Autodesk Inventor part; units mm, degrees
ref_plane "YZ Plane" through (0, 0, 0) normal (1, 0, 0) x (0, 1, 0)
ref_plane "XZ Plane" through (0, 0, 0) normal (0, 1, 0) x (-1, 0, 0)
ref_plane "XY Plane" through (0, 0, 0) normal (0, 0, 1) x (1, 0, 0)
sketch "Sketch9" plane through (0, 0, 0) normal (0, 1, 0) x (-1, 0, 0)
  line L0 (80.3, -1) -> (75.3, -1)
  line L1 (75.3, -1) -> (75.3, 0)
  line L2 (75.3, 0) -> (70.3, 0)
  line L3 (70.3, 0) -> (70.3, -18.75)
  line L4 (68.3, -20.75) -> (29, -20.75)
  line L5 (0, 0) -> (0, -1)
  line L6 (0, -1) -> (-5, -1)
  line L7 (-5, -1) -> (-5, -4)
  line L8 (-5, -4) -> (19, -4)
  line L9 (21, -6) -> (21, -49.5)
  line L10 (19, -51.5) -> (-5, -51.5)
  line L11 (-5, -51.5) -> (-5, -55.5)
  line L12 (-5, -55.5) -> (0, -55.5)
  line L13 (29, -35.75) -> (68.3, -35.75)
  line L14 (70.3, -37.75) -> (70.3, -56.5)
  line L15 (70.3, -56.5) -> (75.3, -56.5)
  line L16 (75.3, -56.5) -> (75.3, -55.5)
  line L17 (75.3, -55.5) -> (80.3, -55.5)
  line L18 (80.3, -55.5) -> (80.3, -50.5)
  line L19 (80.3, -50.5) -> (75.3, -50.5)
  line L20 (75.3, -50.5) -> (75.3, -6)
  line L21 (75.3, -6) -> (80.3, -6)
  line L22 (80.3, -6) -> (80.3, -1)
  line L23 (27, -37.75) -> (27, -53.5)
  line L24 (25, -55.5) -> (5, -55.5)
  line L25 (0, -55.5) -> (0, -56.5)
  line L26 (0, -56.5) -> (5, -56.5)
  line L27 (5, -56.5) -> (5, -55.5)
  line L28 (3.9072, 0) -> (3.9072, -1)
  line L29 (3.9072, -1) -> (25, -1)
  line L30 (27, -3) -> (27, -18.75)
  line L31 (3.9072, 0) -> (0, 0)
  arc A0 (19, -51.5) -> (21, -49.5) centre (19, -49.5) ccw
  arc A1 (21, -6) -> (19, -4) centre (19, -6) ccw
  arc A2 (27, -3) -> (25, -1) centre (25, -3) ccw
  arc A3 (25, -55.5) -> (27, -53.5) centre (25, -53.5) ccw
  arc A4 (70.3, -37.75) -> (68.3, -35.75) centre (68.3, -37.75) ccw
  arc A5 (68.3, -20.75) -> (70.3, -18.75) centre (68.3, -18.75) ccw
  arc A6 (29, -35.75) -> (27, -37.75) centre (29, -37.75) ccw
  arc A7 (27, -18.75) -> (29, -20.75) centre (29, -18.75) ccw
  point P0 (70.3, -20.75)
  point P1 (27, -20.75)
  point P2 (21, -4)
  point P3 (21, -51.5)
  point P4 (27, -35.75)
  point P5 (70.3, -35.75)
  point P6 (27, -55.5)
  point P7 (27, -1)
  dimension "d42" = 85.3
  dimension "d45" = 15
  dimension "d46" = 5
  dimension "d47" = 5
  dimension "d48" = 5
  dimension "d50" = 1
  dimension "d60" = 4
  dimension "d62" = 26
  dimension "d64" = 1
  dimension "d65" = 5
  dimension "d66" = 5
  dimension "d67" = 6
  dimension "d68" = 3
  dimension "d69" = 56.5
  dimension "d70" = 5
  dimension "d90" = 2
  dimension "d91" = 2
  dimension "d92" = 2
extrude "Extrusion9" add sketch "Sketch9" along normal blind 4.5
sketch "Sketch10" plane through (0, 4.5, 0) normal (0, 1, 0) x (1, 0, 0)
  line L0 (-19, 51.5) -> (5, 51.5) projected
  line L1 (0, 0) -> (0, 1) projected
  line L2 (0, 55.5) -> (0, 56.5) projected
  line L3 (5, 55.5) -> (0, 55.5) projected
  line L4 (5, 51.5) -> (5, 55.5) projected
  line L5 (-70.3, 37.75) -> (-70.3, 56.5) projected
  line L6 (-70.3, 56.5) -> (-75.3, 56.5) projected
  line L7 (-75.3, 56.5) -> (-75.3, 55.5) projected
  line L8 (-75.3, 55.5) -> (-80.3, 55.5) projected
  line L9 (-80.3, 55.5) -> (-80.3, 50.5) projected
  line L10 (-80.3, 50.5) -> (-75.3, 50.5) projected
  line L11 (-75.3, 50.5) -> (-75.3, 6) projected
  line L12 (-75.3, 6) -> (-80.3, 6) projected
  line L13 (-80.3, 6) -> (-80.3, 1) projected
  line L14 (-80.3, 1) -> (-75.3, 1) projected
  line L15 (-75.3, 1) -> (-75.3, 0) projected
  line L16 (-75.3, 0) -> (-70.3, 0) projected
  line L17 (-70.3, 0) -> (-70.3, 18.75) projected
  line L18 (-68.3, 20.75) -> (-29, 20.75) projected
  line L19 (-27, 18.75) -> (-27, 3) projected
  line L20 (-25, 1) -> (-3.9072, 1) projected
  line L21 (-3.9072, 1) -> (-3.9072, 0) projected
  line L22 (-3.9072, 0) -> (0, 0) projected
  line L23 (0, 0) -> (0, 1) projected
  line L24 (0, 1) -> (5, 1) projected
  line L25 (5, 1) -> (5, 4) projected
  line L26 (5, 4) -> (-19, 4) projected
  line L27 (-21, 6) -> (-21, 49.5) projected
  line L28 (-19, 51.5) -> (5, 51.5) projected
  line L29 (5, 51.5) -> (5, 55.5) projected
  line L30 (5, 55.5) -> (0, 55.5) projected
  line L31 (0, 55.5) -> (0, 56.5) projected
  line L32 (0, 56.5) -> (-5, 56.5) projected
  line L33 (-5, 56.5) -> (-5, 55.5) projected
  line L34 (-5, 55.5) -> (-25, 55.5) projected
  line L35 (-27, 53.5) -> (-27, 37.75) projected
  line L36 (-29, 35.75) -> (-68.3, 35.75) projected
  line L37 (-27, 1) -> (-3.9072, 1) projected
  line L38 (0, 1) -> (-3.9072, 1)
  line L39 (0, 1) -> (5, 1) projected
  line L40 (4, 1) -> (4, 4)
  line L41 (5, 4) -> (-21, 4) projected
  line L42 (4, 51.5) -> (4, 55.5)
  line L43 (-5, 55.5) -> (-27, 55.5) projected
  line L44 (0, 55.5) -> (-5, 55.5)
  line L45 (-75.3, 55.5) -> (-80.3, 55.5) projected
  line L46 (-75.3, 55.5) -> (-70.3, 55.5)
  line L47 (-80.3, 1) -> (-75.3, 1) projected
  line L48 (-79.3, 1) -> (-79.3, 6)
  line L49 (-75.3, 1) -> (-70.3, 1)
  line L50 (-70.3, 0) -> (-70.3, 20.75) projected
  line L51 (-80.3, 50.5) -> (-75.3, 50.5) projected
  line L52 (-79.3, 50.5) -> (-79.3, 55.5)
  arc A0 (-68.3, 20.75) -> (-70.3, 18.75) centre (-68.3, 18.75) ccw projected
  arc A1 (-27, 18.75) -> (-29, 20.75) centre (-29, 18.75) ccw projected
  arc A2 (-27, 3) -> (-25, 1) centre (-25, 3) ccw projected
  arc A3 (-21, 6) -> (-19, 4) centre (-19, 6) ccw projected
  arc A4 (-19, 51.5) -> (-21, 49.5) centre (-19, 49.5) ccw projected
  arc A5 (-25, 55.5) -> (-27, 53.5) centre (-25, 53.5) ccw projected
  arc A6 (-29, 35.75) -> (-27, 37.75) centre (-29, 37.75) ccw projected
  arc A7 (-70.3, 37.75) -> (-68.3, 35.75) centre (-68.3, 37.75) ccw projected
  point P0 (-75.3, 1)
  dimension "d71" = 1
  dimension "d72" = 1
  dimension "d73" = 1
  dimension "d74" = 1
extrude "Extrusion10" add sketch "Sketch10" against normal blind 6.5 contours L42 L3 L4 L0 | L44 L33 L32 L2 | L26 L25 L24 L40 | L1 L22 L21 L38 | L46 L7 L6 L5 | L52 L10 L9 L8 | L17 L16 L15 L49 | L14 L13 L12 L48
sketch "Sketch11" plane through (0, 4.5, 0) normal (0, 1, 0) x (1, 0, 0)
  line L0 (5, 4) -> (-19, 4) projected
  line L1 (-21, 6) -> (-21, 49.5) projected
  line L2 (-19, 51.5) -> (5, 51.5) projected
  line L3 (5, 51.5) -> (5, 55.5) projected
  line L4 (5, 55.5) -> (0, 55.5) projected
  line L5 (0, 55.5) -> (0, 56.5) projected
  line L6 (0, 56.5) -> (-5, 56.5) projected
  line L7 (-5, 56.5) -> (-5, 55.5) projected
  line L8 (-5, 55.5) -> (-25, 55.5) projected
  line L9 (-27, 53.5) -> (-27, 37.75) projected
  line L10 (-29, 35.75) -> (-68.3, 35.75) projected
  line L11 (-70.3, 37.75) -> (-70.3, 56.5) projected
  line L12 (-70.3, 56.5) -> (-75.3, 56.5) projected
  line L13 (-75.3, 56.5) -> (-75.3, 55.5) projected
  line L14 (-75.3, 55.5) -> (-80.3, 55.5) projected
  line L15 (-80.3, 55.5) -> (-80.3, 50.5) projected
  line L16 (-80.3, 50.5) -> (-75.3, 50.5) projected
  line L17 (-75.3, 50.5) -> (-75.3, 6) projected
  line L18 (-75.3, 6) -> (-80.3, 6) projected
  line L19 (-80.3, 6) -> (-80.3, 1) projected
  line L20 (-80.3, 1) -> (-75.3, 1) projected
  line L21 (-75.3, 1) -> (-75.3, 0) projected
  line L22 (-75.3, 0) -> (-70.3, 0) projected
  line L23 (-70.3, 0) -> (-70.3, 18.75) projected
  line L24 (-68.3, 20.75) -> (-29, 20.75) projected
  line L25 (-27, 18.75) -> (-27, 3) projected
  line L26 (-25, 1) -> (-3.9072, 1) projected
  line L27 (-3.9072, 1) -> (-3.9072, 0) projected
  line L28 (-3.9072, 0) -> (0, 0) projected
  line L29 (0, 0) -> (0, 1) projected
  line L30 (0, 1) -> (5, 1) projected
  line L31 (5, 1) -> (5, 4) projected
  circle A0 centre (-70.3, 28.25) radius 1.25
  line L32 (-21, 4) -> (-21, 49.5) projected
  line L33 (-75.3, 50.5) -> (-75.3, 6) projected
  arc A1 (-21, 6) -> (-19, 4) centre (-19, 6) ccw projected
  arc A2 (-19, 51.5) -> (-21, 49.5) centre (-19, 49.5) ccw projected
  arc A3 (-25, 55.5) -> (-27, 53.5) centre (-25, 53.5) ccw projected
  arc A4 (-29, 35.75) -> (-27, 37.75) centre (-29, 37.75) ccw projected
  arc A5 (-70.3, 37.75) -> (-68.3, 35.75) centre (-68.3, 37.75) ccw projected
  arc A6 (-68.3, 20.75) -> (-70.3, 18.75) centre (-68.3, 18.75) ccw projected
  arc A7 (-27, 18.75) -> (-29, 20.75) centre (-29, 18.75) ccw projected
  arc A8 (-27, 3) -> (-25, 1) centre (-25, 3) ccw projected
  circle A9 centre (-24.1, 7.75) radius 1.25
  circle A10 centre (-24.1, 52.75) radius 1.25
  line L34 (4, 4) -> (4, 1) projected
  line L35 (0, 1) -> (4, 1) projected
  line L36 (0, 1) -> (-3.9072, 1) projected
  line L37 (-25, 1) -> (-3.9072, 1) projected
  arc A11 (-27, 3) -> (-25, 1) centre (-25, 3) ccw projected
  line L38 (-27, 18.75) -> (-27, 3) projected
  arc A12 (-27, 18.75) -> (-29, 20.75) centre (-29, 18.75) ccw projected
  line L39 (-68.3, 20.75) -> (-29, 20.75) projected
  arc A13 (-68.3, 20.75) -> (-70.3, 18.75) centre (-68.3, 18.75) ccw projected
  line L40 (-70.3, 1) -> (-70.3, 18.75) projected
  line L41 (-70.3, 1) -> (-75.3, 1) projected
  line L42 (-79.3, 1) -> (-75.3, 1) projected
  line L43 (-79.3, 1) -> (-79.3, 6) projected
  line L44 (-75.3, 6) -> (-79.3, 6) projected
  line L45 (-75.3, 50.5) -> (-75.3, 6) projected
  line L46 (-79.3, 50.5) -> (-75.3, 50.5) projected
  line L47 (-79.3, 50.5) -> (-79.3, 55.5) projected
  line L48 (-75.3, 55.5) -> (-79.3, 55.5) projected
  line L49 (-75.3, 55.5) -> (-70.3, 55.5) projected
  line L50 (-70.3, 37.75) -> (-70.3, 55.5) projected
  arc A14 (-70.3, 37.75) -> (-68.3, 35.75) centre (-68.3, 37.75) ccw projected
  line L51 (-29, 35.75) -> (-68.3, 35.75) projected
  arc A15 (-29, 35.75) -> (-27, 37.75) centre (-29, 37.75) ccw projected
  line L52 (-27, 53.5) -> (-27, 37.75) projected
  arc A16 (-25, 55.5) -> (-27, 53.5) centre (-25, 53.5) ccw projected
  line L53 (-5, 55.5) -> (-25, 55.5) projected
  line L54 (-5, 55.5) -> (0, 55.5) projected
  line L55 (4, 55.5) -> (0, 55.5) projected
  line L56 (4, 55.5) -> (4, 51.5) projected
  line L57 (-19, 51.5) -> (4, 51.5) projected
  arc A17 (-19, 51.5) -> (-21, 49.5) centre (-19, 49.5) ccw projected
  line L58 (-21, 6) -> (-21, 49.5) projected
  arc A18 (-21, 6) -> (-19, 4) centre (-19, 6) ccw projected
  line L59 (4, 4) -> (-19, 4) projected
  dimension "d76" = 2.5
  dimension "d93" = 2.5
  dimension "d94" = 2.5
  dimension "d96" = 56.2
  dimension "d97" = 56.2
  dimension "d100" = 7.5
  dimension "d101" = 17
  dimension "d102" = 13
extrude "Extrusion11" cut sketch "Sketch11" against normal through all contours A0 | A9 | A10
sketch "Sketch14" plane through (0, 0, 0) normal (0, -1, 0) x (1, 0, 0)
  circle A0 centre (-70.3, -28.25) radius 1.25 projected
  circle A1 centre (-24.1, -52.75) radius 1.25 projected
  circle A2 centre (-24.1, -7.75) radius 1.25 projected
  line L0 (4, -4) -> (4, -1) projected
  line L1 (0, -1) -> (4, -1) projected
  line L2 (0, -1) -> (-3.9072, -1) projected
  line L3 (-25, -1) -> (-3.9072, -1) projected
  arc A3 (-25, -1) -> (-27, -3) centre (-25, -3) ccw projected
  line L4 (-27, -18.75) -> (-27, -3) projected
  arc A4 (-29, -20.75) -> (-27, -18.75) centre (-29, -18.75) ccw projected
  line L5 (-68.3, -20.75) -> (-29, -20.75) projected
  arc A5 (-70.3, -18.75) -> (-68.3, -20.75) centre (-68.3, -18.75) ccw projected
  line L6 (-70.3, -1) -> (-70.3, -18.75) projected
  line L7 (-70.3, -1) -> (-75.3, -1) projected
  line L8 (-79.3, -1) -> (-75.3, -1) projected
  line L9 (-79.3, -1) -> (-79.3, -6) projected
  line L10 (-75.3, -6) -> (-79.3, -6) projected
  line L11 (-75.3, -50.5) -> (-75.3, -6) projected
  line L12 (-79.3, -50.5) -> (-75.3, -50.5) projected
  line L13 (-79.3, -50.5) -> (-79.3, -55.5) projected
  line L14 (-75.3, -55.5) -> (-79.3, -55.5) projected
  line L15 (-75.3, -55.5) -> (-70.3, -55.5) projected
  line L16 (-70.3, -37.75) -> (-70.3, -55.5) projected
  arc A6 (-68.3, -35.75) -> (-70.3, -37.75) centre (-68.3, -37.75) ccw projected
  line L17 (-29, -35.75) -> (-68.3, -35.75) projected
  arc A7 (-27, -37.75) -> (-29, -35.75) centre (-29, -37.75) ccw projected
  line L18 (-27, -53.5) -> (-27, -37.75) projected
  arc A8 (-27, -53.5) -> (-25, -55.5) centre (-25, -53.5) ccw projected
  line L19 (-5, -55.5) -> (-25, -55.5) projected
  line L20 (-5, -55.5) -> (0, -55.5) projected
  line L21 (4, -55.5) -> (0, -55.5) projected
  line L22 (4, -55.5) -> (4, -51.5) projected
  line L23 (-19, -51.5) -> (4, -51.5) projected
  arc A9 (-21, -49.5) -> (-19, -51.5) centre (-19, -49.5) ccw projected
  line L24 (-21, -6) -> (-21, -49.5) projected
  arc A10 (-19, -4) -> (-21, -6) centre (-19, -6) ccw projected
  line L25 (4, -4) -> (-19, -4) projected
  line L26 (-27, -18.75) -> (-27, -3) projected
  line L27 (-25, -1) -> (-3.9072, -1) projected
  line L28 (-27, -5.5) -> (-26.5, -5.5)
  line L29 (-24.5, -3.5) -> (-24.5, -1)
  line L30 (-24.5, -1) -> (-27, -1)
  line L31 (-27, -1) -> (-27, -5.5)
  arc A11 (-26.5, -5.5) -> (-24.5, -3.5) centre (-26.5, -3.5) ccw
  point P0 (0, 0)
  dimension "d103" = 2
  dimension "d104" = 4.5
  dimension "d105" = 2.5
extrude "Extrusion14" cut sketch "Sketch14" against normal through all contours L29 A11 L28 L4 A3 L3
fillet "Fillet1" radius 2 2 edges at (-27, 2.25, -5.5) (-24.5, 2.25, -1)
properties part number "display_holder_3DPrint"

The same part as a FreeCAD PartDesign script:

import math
import FreeCAD as App
import Part
import Sketcher


def edges_at(feature, points):
    """Names of the edges that pass closest to the given points."""
    edges = feature.Shape.Edges
    near = lambda p: min(range(len(edges)), key=lambda i: edges[i].distToShape(Part.Vertex(*p))[0])
    return sorted({f"Edge{near(p) + 1}" for p in points})

doc = App.newDocument("Part")
body = doc.addObject("PartDesign::Body", "Body")

# Sketch on XZ plane
sketch1 = body.newObject("Sketcher::SketchObject", "Sketch")
sketch1.AttachmentSupport = (doc.getObject("XZ_Plane"), [""])
sketch1.MapMode = "FlatFace"
sketch1.addGeometry([
    Part.LineSegment(App.Vector(-80.3, -6, 0), App.Vector(-80.3, -1, 0)),  # 0
    Part.LineSegment(App.Vector(-80.3, -1, 0), App.Vector(-75.3, -1, 0)),  # 1
    Part.LineSegment(App.Vector(-75.3, -1, 0), App.Vector(-75.3, 0, 0)),  # 2
    Part.LineSegment(App.Vector(-75.3, 0, 0), App.Vector(-70.3, 0, 0)),  # 3
    Part.LineSegment(App.Vector(-70.3, 0, 0), App.Vector(-70.3, -18.8, 0)),  # 4
    Part.ArcOfCircle(Part.Circle(App.Vector(-68.3, -18.8, 0), App.Vector(0, 0, 1), 2), math.radians(180), math.radians(270)),  # 5
    Part.LineSegment(App.Vector(-68.3, -20.8, 0), App.Vector(-29, -20.8, 0)),  # 6
    Part.ArcOfCircle(Part.Circle(App.Vector(-29, -18.8, 0), App.Vector(0, 0, 1), 2), math.radians(-90), math.radians(0)),  # 7
    Part.LineSegment(App.Vector(-27, -18.8, 0), App.Vector(-27, -3, 0)),  # 8
    Part.ArcOfCircle(Part.Circle(App.Vector(-25, -3, 0), App.Vector(0, 0, 1), 2), math.radians(90), math.radians(180)),  # 9
    Part.LineSegment(App.Vector(-25, -1, 0), App.Vector(-3.9, -1, 0)),  # 10
    Part.LineSegment(App.Vector(-3.9, -1, 0), App.Vector(-3.9, 0, 0)),  # 11
    Part.LineSegment(App.Vector(-3.9, 0, 0), App.Vector(0, 0, 0)),  # 12
    Part.LineSegment(App.Vector(0, 0, 0), App.Vector(0, -1, 0)),  # 13
    Part.LineSegment(App.Vector(0, -1, 0), App.Vector(5, -1, 0)),  # 14
    Part.LineSegment(App.Vector(5, -1, 0), App.Vector(5, -4, 0)),  # 15
    Part.LineSegment(App.Vector(5, -4, 0), App.Vector(-19, -4, 0)),  # 16
    Part.ArcOfCircle(Part.Circle(App.Vector(-19, -6, 0), App.Vector(0, 0, 1), 2), math.radians(90), math.radians(180)),  # 17
    Part.LineSegment(App.Vector(-21, -6, 0), App.Vector(-21, -49.5, 0)),  # 18
    Part.ArcOfCircle(Part.Circle(App.Vector(-19, -49.5, 0), App.Vector(0, 0, 1), 2), math.radians(180), math.radians(270)),  # 19
    Part.LineSegment(App.Vector(-19, -51.5, 0), App.Vector(5, -51.5, 0)),  # 20
    Part.LineSegment(App.Vector(5, -51.5, 0), App.Vector(5, -55.5, 0)),  # 21
    Part.LineSegment(App.Vector(5, -55.5, 0), App.Vector(0, -55.5, 0)),  # 22
    Part.LineSegment(App.Vector(0, -55.5, 0), App.Vector(0, -56.5, 0)),  # 23
    Part.LineSegment(App.Vector(0, -56.5, 0), App.Vector(-5, -56.5, 0)),  # 24
    Part.LineSegment(App.Vector(-5, -56.5, 0), App.Vector(-5, -55.5, 0)),  # 25
    Part.LineSegment(App.Vector(-5, -55.5, 0), App.Vector(-25, -55.5, 0)),  # 26
    Part.ArcOfCircle(Part.Circle(App.Vector(-25, -53.5, 0), App.Vector(0, 0, 1), 2), math.radians(180), math.radians(270)),  # 27
    Part.LineSegment(App.Vector(-27, -53.5, 0), App.Vector(-27, -37.8, 0)),  # 28
    Part.ArcOfCircle(Part.Circle(App.Vector(-29, -37.8, 0), App.Vector(0, 0, 1), 2), math.radians(0), math.radians(90)),  # 29
    Part.LineSegment(App.Vector(-29, -35.8, 0), App.Vector(-68.3, -35.8, 0)),  # 30
    Part.ArcOfCircle(Part.Circle(App.Vector(-68.3, -37.8, 0), App.Vector(0, 0, 1), 2), math.radians(90), math.radians(180)),  # 31
    Part.LineSegment(App.Vector(-70.3, -37.8, 0), App.Vector(-70.3, -56.5, 0)),  # 32
    Part.LineSegment(App.Vector(-70.3, -56.5, 0), App.Vector(-75.3, -56.5, 0)),  # 33
    Part.LineSegment(App.Vector(-75.3, -56.5, 0), App.Vector(-75.3, -55.5, 0)),  # 34
    Part.LineSegment(App.Vector(-75.3, -55.5, 0), App.Vector(-80.3, -55.5, 0)),  # 35
    Part.LineSegment(App.Vector(-80.3, -55.5, 0), App.Vector(-80.3, -50.5, 0)),  # 36
    Part.LineSegment(App.Vector(-80.3, -50.5, 0), App.Vector(-75.3, -50.5, 0)),  # 37
    Part.LineSegment(App.Vector(-75.3, -50.5, 0), App.Vector(-75.3, -6, 0)),  # 38
    Part.LineSegment(App.Vector(-75.3, -6, 0), App.Vector(-80.3, -6, 0)),  # 39
], False)
sketch1.addConstraint([
    Sketcher.Constraint("Coincident", 0, 2, 1, 1),
    Sketcher.Constraint("Coincident", 1, 2, 2, 1),
    Sketcher.Constraint("Coincident", 2, 2, 3, 1),
    Sketcher.Constraint("Coincident", 3, 2, 4, 1),
    Sketcher.Constraint("Tangent", 4, 2, 5, 1),
    Sketcher.Constraint("Tangent", 5, 2, 6, 1),
    Sketcher.Constraint("Tangent", 6, 2, 7, 1),
    Sketcher.Constraint("Tangent", 7, 2, 8, 1),
    Sketcher.Constraint("Tangent", 8, 2, 9, 2),
    Sketcher.Constraint("Tangent", 9, 1, 10, 1),
    Sketcher.Constraint("Coincident", 10, 2, 11, 1),
    Sketcher.Constraint("Coincident", 11, 2, 12, 1),
    Sketcher.Constraint("Coincident", 12, 2, 13, 1),
    Sketcher.Constraint("Coincident", 13, 2, 14, 1),
    Sketcher.Constraint("Coincident", 14, 2, 15, 1),
    Sketcher.Constraint("Coincident", 15, 2, 16, 1),
    Sketcher.Constraint("Tangent", 16, 2, 17, 1),
    Sketcher.Constraint("Tangent", 17, 2, 18, 1),
    Sketcher.Constraint("Tangent", 18, 2, 19, 1),
    Sketcher.Constraint("Tangent", 19, 2, 20, 1),
    Sketcher.Constraint("Coincident", 20, 2, 21, 1),
    Sketcher.Constraint("Coincident", 21, 2, 22, 1),
    Sketcher.Constraint("Coincident", 22, 2, 23, 1),
    Sketcher.Constraint("Coincident", 23, 2, 24, 1),
    Sketcher.Constraint("Coincident", 24, 2, 25, 1),
    Sketcher.Constraint("Coincident", 25, 2, 26, 1),
    Sketcher.Constraint("Tangent", 26, 2, 27, 2),
    Sketcher.Constraint("Tangent", 27, 1, 28, 1),
    Sketcher.Constraint("Tangent", 28, 2, 29, 1),
    Sketcher.Constraint("Tangent", 29, 2, 30, 1),
    Sketcher.Constraint("Tangent", 30, 2, 31, 1),
    Sketcher.Constraint("Tangent", 31, 2, 32, 1),
    Sketcher.Constraint("Coincident", 32, 2, 33, 1),
    Sketcher.Constraint("Coincident", 33, 2, 34, 1),
    Sketcher.Constraint("Coincident", 34, 2, 35, 1),
    Sketcher.Constraint("Coincident", 35, 2, 36, 1),
    Sketcher.Constraint("Coincident", 36, 2, 37, 1),
    Sketcher.Constraint("Coincident", 37, 2, 38, 1),
    Sketcher.Constraint("Coincident", 38, 2, 39, 1),
    Sketcher.Constraint("Coincident", 39, 2, 0, 1),
    Sketcher.Constraint("Vertical", 0),
    Sketcher.Constraint("Horizontal", 1),
    Sketcher.Constraint("Vertical", 2),
    Sketcher.Constraint("Horizontal", 3),
    Sketcher.Constraint("Vertical", 4),
    Sketcher.Constraint("Horizontal", 6),
    Sketcher.Constraint("Vertical", 8),
    Sketcher.Constraint("Horizontal", 10),
    Sketcher.Constraint("Vertical", 11),
    Sketcher.Constraint("Horizontal", 12),
    Sketcher.Constraint("Vertical", 13),
    Sketcher.Constraint("Horizontal", 14),
    Sketcher.Constraint("Vertical", 15),
    Sketcher.Constraint("Horizontal", 16),
    Sketcher.Constraint("Vertical", 18),
    Sketcher.Constraint("Horizontal", 20),
    Sketcher.Constraint("Vertical", 21),
    Sketcher.Constraint("Horizontal", 22),
    Sketcher.Constraint("Vertical", 23),
    Sketcher.Constraint("Horizontal", 24),
    Sketcher.Constraint("Vertical", 25),
    Sketcher.Constraint("Horizontal", 26),
    Sketcher.Constraint("Vertical", 28),
    Sketcher.Constraint("Horizontal", 30),
    Sketcher.Constraint("Vertical", 32),
    Sketcher.Constraint("Horizontal", 33),
    Sketcher.Constraint("Vertical", 34),
    Sketcher.Constraint("Horizontal", 35),
    Sketcher.Constraint("Vertical", 36),
    Sketcher.Constraint("Horizontal", 37),
    Sketcher.Constraint("Vertical", 38),
    Sketcher.Constraint("Horizontal", 39),
    Sketcher.Constraint("Coincident", 12, 2, -1, 1),
    Sketcher.Constraint("Equal", 5, 7),
    Sketcher.Constraint("Equal", 7, 9),
    Sketcher.Constraint("Equal", 9, 17),
    Sketcher.Constraint("Equal", 17, 19),
    Sketcher.Constraint("Equal", 19, 27),
    Sketcher.Constraint("Equal", 27, 29),
    Sketcher.Constraint("Equal", 29, 31),
    Sketcher.Constraint("Symmetric", 21, 2, 25, 2, -2),
    Sketcher.Constraint("PointOnObject", 2, 2, -1),
    Sketcher.Constraint("PointOnObject", 22, 2, -2),
    Sketcher.Constraint("Horizontal", 1, 2, 9, 1),
    Sketcher.Constraint("Horizontal", 10, 2, 13, 2),
    Sketcher.Constraint("Horizontal", 24, 2, 32, 2),
    Sketcher.Constraint("Horizontal", 26, 2, 34, 2),
    Sketcher.Constraint("Horizontal", 17, 2, 38, 2),
    Sketcher.Constraint("Vertical", 9, 3, 27, 3),
    Sketcher.Constraint("Vertical", 5, 3, 31, 3),
    Sketcher.Constraint("Vertical", 15, 2, 20, 2),
    Sketcher.Constraint("Vertical", 2, 2, 33, 2),
    Sketcher.Constraint("Vertical", 0, 2, 35, 2),
    Sketcher.Constraint("Vertical", 34, 2, 37, 2),
    Sketcher.Constraint("Equal", 1, 3),
    Sketcher.Constraint("Equal", 3, 14),
    Sketcher.Constraint("Equal", 39, 0),
    Sketcher.Constraint("Equal", 13, 23),
    Sketcher.Constraint("Equal", 8, 28),
    Sketcher.Constraint("Equal", 0, 36),
    Sketcher.Constraint("Radius", 5, 2.0),
    Sketcher.Constraint("DistanceX", 1, 1, 1, 2, 5.0),
    Sketcher.Constraint("DistanceY", 2, 1, 2, 2, 1.0),
    Sketcher.Constraint("DistanceY", 21, 2, 21, 1, 4.0),
    Sketcher.Constraint("DistanceX", 9, 3, 17, 3, 6.0),
    Sketcher.Constraint("DistanceX", 18, 2, 20, 2, 26.0),
    Sketcher.Constraint("DistanceY", 29, 2, 6, 2, 15.0),
    Sketcher.Constraint("DistanceY", 23, 2, -1, 1, 56.5),
    Sketcher.Constraint("DistanceX", 6, 1, 6, 2, 39.3),
    Sketcher.Constraint("DistanceX", 10, 1, 10, 2, 21.0928),
])
pad1 = body.newObject("PartDesign::Pad", "Pad")
pad1.Profile = sketch1
pad1.Length = 4.5
pad1.Reversed = True

# Sketch on XZ plane
sketch2 = body.newObject("Sketcher::SketchObject", "Sketch001")
sketch2.AttachmentSupport = (doc.getObject("XZ_Plane"), [""])
sketch2.MapMode = "FlatFace"
sketch2.AttachmentOffset = App.Placement(App.Vector(0, 0, -4.5), App.Rotation())
sketch2.addGeometry([
    Part.LineSegment(App.Vector(4, -55.5, 0), App.Vector(4, -51.5, 0)),  # 0
    Part.LineSegment(App.Vector(4, -51.5, 0), App.Vector(5, -51.5, 0)),  # 1
    Part.LineSegment(App.Vector(5, -51.5, 0), App.Vector(5, -55.5, 0)),  # 2
    Part.LineSegment(App.Vector(5, -55.5, 0), App.Vector(4, -55.5, 0)),  # 3
    Part.LineSegment(App.Vector(-5, -55.5, 0), App.Vector(0, -55.5, 0)),  # 4
    Part.LineSegment(App.Vector(0, -55.5, 0), App.Vector(0, -56.5, 0)),  # 5
    Part.LineSegment(App.Vector(0, -56.5, 0), App.Vector(-5, -56.5, 0)),  # 6
    Part.LineSegment(App.Vector(-5, -56.5, 0), App.Vector(-5, -55.5, 0)),  # 7
    Part.LineSegment(App.Vector(5, -4, 0), App.Vector(4, -4, 0)),  # 8
    Part.LineSegment(App.Vector(4, -4, 0), App.Vector(4, -1, 0)),  # 9
    Part.LineSegment(App.Vector(4, -1, 0), App.Vector(5, -1, 0)),  # 10
    Part.LineSegment(App.Vector(5, -1, 0), App.Vector(5, -4, 0)),  # 11
    Part.LineSegment(App.Vector(0, 0, 0), App.Vector(0, -1, 0)),  # 12
    Part.LineSegment(App.Vector(0, -1, 0), App.Vector(-3.9, -1, 0)),  # 13
    Part.LineSegment(App.Vector(-3.9, -1, 0), App.Vector(-3.9, 0, 0)),  # 14
    Part.LineSegment(App.Vector(-3.9, 0, 0), App.Vector(0, 0, 0)),  # 15
    Part.LineSegment(App.Vector(-75.3, -55.5, 0), App.Vector(-70.3, -55.5, 0)),  # 16
    Part.LineSegment(App.Vector(-70.3, -55.5, 0), App.Vector(-70.3, -56.5, 0)),  # 17
    Part.LineSegment(App.Vector(-70.3, -56.5, 0), App.Vector(-75.3, -56.5, 0)),  # 18
    Part.LineSegment(App.Vector(-75.3, -56.5, 0), App.Vector(-75.3, -55.5, 0)),  # 19
    Part.LineSegment(App.Vector(-79.3, -50.5, 0), App.Vector(-79.3, -55.5, 0)),  # 20
    Part.LineSegment(App.Vector(-79.3, -55.5, 0), App.Vector(-80.3, -55.5, 0)),  # 21
    Part.LineSegment(App.Vector(-80.3, -55.5, 0), App.Vector(-80.3, -50.5, 0)),  # 22
    Part.LineSegment(App.Vector(-80.3, -50.5, 0), App.Vector(-79.3, -50.5, 0)),  # 23
    Part.LineSegment(App.Vector(-70.3, 0, 0), App.Vector(-70.3, -1, 0)),  # 24
    Part.LineSegment(App.Vector(-70.3, -1, 0), App.Vector(-75.3, -1, 0)),  # 25
    Part.LineSegment(App.Vector(-75.3, -1, 0), App.Vector(-75.3, 0, 0)),  # 26
    Part.LineSegment(App.Vector(-75.3, 0, 0), App.Vector(-70.3, 0, 0)),  # 27
    Part.LineSegment(App.Vector(-80.3, -1, 0), App.Vector(-79.3, -1, 0)),  # 28
    Part.LineSegment(App.Vector(-79.3, -1, 0), App.Vector(-79.3, -6, 0)),  # 29
    Part.LineSegment(App.Vector(-79.3, -6, 0), App.Vector(-80.3, -6, 0)),  # 30
    Part.LineSegment(App.Vector(-80.3, -6, 0), App.Vector(-80.3, -1, 0)),  # 31
], False)
sketch2.addConstraint([
    Sketcher.Constraint("Coincident", 0, 2, 1, 1),
    Sketcher.Constraint("Coincident", 1, 2, 2, 1),
    Sketcher.Constraint("Coincident", 2, 2, 3, 1),
    Sketcher.Constraint("Coincident", 3, 2, 0, 1),
    Sketcher.Constraint("Coincident", 4, 2, 5, 1),
    Sketcher.Constraint("Coincident", 5, 2, 6, 1),
    Sketcher.Constraint("Coincident", 6, 2, 7, 1),
    Sketcher.Constraint("Coincident", 7, 2, 4, 1),
    Sketcher.Constraint("Coincident", 8, 2, 9, 1),
    Sketcher.Constraint("Coincident", 9, 2, 10, 1),
    Sketcher.Constraint("Coincident", 10, 2, 11, 1),
    Sketcher.Constraint("Coincident", 11, 2, 8, 1),
    Sketcher.Constraint("Coincident", 12, 2, 13, 1),
    Sketcher.Constraint("Coincident", 13, 2, 14, 1),
    Sketcher.Constraint("Coincident", 14, 2, 15, 1),
    Sketcher.Constraint("Coincident", 15, 2, 12, 1),
    Sketcher.Constraint("Coincident", 16, 2, 17, 1),
    Sketcher.Constraint("Coincident", 17, 2, 18, 1),
    Sketcher.Constraint("Coincident", 18, 2, 19, 1),
    Sketcher.Constraint("Coincident", 19, 2, 16, 1),
    Sketcher.Constraint("Coincident", 20, 2, 21, 1),
    Sketcher.Constraint("Coincident", 21, 2, 22, 1),
    Sketcher.Constraint("Coincident", 22, 2, 23, 1),
    Sketcher.Constraint("Coincident", 23, 2, 20, 1),
    Sketcher.Constraint("Coincident", 24, 2, 25, 1),
    Sketcher.Constraint("Coincident", 25, 2, 26, 1),
    Sketcher.Constraint("Coincident", 26, 2, 27, 1),
    Sketcher.Constraint("Coincident", 27, 2, 24, 1),
    Sketcher.Constraint("Coincident", 28, 2, 29, 1),
    Sketcher.Constraint("Coincident", 29, 2, 30, 1),
    Sketcher.Constraint("Coincident", 30, 2, 31, 1),
    Sketcher.Constraint("Coincident", 31, 2, 28, 1),
    Sketcher.Constraint("Vertical", 0),
    Sketcher.Constraint("Horizontal", 1),
    Sketcher.Constraint("Vertical", 2),
    Sketcher.Constraint("Horizontal", 3),
    Sketcher.Constraint("Horizontal", 4),
    Sketcher.Constraint("Vertical", 5),
    Sketcher.Constraint("Horizontal", 6),
    Sketcher.Constraint("Vertical", 7),
    Sketcher.Constraint("Horizontal", 8),
    Sketcher.Constraint("Vertical", 9),
    Sketcher.Constraint("Horizontal", 10),
    Sketcher.Constraint("Vertical", 11),
    Sketcher.Constraint("Vertical", 12),
    Sketcher.Constraint("Horizontal", 13),
    Sketcher.Constraint("Vertical", 14),
    Sketcher.Constraint("Horizontal", 15),
    Sketcher.Constraint("Horizontal", 16),
    Sketcher.Constraint("Vertical", 17),
    Sketcher.Constraint("Horizontal", 18),
    Sketcher.Constraint("Vertical", 19),
    Sketcher.Constraint("Vertical", 20),
    Sketcher.Constraint("Horizontal", 21),
    Sketcher.Constraint("Vertical", 22),
    Sketcher.Constraint("Horizontal", 23),
    Sketcher.Constraint("Vertical", 24),
    Sketcher.Constraint("Horizontal", 25),
    Sketcher.Constraint("Vertical", 26),
    Sketcher.Constraint("Horizontal", 27),
    Sketcher.Constraint("Horizontal", 28),
    Sketcher.Constraint("Vertical", 29),
    Sketcher.Constraint("Horizontal", 30),
    Sketcher.Constraint("Vertical", 31),
    Sketcher.Constraint("Coincident", 15, 2, -1, 1),
    Sketcher.Constraint("Symmetric", 2, 2, 7, 2, -2),
    Sketcher.Constraint("PointOnObject", 4, 2, -2),
    Sketcher.Constraint("PointOnObject", 26, 2, -1),
    Sketcher.Constraint("Horizontal", 10, 2, 12, 2),
    Sketcher.Constraint("Horizontal", 7, 2, 16, 2),
    Sketcher.Constraint("Horizontal", 6, 2, 17, 2),
    Sketcher.Constraint("Horizontal", 19, 2, 20, 2),
    Sketcher.Constraint("Horizontal", 13, 2, 24, 2),
    Sketcher.Constraint("Horizontal", 25, 2, 28, 2),
    Sketcher.Constraint("Vertical", 3, 2, 8, 2),
    Sketcher.Constraint("Vertical", 2, 2, 10, 2),
    Sketcher.Constraint("Vertical", 17, 2, 24, 2),
    Sketcher.Constraint("Vertical", 19, 2, 25, 2),
    Sketcher.Constraint("Vertical", 23, 2, 28, 2),
    Sketcher.Constraint("Vertical", 22, 2, 30, 2),
    Sketcher.Constraint("Equal", 6, 16),
    Sketcher.Constraint("Equal", 10, 21),
    Sketcher.Constraint("Equal", 30, 5),
    Sketcher.Constraint("Equal", 7, 12),
    Sketcher.Constraint("Equal", 27, 20),
    Sketcher.Constraint("Equal", 22, 29),
    Sketcher.Constraint("DistanceX", 1, 1, 1, 2, 1.0),
    Sketcher.Constraint("DistanceX", 4, 1, 4, 2, 5.0),
    Sketcher.Constraint("DistanceY", 0, 1, 0, 2, 4.0),
    Sketcher.Constraint("DistanceY", 9, 1, 9, 2, 3.0),
    Sketcher.Constraint("DistanceX", 20, 2, 19, 2, 4.0),
    Sketcher.Constraint("DistanceY", 0, 2, -1, 1, 51.5),
    Sketcher.Constraint("DistanceX", 16, 2, -1, 1, 70.3),
    Sketcher.Constraint("DistanceX", 13, 2, 13, 1, 3.9072),
])
pad2 = body.newObject("PartDesign::Pad", "Pad001")
pad2.Profile = sketch2
pad2.Length = 6.5

# Sketch on XZ plane
sketch3 = body.newObject("Sketcher::SketchObject", "Sketch002")
sketch3.AttachmentSupport = (doc.getObject("XZ_Plane"), [""])
sketch3.MapMode = "FlatFace"
sketch3.AttachmentOffset = App.Placement(App.Vector(0, 0, -4.5), App.Rotation())
sketch3.addGeometry([
    Part.Circle(App.Vector(-70.3, -28.2, 0), App.Vector(0, 0, 1), 1.2),
    Part.Circle(App.Vector(-24.1, -7.8, 0), App.Vector(0, 0, 1), 1.2),
    Part.Circle(App.Vector(-24.1, -52.8, 0), App.Vector(0, 0, 1), 1.2),
], False)
sketch3.addConstraint([
    Sketcher.Constraint("Equal", 0, 1),
    Sketcher.Constraint("Equal", 1, 2),
    Sketcher.Constraint("Vertical", 1, 3, 2, 3),
    Sketcher.Constraint("Diameter", 0, 2.5),
    Sketcher.Constraint("DistanceY", 2, 3, 1, 3, 45.0),
    Sketcher.Constraint("DistanceX", 0, 3, -1, 1, 70.3),
    Sketcher.Constraint("DistanceX", 1, 3, -1, 1, 24.1),
    Sketcher.Constraint("DistanceY", 0, 3, 1, 3, 20.5),
    Sketcher.Constraint("DistanceY", 0, 3, -1, 1, 28.25),
])
pocket1 = body.newObject("PartDesign::Pocket", "Pocket")
pocket1.Profile = sketch3
pocket1.Type = "ThroughAll"
pocket1.Reversed = True

# Sketch on XZ plane
sketch4 = body.newObject("Sketcher::SketchObject", "Sketch003")
sketch4.AttachmentSupport = (doc.getObject("XZ_Plane"), [""])
sketch4.MapMode = "FlatFace"
sketch4.addGeometry([
    Part.LineSegment(App.Vector(-24.5, -3.5, 0), App.Vector(-24.5, -1, 0)),  # 0
    Part.LineSegment(App.Vector(-24.5, -1, 0), App.Vector(-25, -1, 0)),  # 1
    Part.ArcOfCircle(Part.Circle(App.Vector(-25, -3, 0), App.Vector(0, 0, 1), 2), math.radians(90), math.radians(180)),  # 2
    Part.LineSegment(App.Vector(-27, -3, 0), App.Vector(-27, -5.5, 0)),  # 3
    Part.LineSegment(App.Vector(-27, -5.5, 0), App.Vector(-26.5, -5.5, 0)),  # 4
    Part.ArcOfCircle(Part.Circle(App.Vector(-26.5, -3.5, 0), App.Vector(0, 0, 1), 2), math.radians(-90), math.radians(0)),  # 5
], False)
sketch4.addConstraint([
    Sketcher.Constraint("Coincident", 0, 2, 1, 1),
    Sketcher.Constraint("Tangent", 1, 2, 2, 1),
    Sketcher.Constraint("Tangent", 2, 2, 3, 1),
    Sketcher.Constraint("Coincident", 3, 2, 4, 1),
    Sketcher.Constraint("Tangent", 4, 2, 5, 1),
    Sketcher.Constraint("Tangent", 5, 2, 0, 1),
    Sketcher.Constraint("Vertical", 0),
    Sketcher.Constraint("Horizontal", 1),
    Sketcher.Constraint("Vertical", 3),
    Sketcher.Constraint("Horizontal", 4),
    Sketcher.Constraint("Equal", 2, 5),
    Sketcher.Constraint("Radius", 2, 2.0),
    Sketcher.Constraint("DistanceY", 0, 1, 0, 2, 2.5),
    Sketcher.Constraint("DistanceX", 2, 2, 0, 2, 2.5),
    Sketcher.Constraint("DistanceX", 2, 3, -1, 1, 25.0),
    Sketcher.Constraint("DistanceY", 2, 3, -1, 1, 3.0),
])
pocket2 = body.newObject("PartDesign::Pocket", "Pocket001")
pocket2.Profile = sketch4
pocket2.Type = "ThroughAll"
doc.recompute()

fillet = body.newObject("PartDesign::Fillet", "Fillet")
fillet.Base = (pocket2, edges_at(pocket2, [(-27, 2.25, -5.5), (-24.5, 2.25, -1)]))
fillet.Radius = 2

doc.recompute()
